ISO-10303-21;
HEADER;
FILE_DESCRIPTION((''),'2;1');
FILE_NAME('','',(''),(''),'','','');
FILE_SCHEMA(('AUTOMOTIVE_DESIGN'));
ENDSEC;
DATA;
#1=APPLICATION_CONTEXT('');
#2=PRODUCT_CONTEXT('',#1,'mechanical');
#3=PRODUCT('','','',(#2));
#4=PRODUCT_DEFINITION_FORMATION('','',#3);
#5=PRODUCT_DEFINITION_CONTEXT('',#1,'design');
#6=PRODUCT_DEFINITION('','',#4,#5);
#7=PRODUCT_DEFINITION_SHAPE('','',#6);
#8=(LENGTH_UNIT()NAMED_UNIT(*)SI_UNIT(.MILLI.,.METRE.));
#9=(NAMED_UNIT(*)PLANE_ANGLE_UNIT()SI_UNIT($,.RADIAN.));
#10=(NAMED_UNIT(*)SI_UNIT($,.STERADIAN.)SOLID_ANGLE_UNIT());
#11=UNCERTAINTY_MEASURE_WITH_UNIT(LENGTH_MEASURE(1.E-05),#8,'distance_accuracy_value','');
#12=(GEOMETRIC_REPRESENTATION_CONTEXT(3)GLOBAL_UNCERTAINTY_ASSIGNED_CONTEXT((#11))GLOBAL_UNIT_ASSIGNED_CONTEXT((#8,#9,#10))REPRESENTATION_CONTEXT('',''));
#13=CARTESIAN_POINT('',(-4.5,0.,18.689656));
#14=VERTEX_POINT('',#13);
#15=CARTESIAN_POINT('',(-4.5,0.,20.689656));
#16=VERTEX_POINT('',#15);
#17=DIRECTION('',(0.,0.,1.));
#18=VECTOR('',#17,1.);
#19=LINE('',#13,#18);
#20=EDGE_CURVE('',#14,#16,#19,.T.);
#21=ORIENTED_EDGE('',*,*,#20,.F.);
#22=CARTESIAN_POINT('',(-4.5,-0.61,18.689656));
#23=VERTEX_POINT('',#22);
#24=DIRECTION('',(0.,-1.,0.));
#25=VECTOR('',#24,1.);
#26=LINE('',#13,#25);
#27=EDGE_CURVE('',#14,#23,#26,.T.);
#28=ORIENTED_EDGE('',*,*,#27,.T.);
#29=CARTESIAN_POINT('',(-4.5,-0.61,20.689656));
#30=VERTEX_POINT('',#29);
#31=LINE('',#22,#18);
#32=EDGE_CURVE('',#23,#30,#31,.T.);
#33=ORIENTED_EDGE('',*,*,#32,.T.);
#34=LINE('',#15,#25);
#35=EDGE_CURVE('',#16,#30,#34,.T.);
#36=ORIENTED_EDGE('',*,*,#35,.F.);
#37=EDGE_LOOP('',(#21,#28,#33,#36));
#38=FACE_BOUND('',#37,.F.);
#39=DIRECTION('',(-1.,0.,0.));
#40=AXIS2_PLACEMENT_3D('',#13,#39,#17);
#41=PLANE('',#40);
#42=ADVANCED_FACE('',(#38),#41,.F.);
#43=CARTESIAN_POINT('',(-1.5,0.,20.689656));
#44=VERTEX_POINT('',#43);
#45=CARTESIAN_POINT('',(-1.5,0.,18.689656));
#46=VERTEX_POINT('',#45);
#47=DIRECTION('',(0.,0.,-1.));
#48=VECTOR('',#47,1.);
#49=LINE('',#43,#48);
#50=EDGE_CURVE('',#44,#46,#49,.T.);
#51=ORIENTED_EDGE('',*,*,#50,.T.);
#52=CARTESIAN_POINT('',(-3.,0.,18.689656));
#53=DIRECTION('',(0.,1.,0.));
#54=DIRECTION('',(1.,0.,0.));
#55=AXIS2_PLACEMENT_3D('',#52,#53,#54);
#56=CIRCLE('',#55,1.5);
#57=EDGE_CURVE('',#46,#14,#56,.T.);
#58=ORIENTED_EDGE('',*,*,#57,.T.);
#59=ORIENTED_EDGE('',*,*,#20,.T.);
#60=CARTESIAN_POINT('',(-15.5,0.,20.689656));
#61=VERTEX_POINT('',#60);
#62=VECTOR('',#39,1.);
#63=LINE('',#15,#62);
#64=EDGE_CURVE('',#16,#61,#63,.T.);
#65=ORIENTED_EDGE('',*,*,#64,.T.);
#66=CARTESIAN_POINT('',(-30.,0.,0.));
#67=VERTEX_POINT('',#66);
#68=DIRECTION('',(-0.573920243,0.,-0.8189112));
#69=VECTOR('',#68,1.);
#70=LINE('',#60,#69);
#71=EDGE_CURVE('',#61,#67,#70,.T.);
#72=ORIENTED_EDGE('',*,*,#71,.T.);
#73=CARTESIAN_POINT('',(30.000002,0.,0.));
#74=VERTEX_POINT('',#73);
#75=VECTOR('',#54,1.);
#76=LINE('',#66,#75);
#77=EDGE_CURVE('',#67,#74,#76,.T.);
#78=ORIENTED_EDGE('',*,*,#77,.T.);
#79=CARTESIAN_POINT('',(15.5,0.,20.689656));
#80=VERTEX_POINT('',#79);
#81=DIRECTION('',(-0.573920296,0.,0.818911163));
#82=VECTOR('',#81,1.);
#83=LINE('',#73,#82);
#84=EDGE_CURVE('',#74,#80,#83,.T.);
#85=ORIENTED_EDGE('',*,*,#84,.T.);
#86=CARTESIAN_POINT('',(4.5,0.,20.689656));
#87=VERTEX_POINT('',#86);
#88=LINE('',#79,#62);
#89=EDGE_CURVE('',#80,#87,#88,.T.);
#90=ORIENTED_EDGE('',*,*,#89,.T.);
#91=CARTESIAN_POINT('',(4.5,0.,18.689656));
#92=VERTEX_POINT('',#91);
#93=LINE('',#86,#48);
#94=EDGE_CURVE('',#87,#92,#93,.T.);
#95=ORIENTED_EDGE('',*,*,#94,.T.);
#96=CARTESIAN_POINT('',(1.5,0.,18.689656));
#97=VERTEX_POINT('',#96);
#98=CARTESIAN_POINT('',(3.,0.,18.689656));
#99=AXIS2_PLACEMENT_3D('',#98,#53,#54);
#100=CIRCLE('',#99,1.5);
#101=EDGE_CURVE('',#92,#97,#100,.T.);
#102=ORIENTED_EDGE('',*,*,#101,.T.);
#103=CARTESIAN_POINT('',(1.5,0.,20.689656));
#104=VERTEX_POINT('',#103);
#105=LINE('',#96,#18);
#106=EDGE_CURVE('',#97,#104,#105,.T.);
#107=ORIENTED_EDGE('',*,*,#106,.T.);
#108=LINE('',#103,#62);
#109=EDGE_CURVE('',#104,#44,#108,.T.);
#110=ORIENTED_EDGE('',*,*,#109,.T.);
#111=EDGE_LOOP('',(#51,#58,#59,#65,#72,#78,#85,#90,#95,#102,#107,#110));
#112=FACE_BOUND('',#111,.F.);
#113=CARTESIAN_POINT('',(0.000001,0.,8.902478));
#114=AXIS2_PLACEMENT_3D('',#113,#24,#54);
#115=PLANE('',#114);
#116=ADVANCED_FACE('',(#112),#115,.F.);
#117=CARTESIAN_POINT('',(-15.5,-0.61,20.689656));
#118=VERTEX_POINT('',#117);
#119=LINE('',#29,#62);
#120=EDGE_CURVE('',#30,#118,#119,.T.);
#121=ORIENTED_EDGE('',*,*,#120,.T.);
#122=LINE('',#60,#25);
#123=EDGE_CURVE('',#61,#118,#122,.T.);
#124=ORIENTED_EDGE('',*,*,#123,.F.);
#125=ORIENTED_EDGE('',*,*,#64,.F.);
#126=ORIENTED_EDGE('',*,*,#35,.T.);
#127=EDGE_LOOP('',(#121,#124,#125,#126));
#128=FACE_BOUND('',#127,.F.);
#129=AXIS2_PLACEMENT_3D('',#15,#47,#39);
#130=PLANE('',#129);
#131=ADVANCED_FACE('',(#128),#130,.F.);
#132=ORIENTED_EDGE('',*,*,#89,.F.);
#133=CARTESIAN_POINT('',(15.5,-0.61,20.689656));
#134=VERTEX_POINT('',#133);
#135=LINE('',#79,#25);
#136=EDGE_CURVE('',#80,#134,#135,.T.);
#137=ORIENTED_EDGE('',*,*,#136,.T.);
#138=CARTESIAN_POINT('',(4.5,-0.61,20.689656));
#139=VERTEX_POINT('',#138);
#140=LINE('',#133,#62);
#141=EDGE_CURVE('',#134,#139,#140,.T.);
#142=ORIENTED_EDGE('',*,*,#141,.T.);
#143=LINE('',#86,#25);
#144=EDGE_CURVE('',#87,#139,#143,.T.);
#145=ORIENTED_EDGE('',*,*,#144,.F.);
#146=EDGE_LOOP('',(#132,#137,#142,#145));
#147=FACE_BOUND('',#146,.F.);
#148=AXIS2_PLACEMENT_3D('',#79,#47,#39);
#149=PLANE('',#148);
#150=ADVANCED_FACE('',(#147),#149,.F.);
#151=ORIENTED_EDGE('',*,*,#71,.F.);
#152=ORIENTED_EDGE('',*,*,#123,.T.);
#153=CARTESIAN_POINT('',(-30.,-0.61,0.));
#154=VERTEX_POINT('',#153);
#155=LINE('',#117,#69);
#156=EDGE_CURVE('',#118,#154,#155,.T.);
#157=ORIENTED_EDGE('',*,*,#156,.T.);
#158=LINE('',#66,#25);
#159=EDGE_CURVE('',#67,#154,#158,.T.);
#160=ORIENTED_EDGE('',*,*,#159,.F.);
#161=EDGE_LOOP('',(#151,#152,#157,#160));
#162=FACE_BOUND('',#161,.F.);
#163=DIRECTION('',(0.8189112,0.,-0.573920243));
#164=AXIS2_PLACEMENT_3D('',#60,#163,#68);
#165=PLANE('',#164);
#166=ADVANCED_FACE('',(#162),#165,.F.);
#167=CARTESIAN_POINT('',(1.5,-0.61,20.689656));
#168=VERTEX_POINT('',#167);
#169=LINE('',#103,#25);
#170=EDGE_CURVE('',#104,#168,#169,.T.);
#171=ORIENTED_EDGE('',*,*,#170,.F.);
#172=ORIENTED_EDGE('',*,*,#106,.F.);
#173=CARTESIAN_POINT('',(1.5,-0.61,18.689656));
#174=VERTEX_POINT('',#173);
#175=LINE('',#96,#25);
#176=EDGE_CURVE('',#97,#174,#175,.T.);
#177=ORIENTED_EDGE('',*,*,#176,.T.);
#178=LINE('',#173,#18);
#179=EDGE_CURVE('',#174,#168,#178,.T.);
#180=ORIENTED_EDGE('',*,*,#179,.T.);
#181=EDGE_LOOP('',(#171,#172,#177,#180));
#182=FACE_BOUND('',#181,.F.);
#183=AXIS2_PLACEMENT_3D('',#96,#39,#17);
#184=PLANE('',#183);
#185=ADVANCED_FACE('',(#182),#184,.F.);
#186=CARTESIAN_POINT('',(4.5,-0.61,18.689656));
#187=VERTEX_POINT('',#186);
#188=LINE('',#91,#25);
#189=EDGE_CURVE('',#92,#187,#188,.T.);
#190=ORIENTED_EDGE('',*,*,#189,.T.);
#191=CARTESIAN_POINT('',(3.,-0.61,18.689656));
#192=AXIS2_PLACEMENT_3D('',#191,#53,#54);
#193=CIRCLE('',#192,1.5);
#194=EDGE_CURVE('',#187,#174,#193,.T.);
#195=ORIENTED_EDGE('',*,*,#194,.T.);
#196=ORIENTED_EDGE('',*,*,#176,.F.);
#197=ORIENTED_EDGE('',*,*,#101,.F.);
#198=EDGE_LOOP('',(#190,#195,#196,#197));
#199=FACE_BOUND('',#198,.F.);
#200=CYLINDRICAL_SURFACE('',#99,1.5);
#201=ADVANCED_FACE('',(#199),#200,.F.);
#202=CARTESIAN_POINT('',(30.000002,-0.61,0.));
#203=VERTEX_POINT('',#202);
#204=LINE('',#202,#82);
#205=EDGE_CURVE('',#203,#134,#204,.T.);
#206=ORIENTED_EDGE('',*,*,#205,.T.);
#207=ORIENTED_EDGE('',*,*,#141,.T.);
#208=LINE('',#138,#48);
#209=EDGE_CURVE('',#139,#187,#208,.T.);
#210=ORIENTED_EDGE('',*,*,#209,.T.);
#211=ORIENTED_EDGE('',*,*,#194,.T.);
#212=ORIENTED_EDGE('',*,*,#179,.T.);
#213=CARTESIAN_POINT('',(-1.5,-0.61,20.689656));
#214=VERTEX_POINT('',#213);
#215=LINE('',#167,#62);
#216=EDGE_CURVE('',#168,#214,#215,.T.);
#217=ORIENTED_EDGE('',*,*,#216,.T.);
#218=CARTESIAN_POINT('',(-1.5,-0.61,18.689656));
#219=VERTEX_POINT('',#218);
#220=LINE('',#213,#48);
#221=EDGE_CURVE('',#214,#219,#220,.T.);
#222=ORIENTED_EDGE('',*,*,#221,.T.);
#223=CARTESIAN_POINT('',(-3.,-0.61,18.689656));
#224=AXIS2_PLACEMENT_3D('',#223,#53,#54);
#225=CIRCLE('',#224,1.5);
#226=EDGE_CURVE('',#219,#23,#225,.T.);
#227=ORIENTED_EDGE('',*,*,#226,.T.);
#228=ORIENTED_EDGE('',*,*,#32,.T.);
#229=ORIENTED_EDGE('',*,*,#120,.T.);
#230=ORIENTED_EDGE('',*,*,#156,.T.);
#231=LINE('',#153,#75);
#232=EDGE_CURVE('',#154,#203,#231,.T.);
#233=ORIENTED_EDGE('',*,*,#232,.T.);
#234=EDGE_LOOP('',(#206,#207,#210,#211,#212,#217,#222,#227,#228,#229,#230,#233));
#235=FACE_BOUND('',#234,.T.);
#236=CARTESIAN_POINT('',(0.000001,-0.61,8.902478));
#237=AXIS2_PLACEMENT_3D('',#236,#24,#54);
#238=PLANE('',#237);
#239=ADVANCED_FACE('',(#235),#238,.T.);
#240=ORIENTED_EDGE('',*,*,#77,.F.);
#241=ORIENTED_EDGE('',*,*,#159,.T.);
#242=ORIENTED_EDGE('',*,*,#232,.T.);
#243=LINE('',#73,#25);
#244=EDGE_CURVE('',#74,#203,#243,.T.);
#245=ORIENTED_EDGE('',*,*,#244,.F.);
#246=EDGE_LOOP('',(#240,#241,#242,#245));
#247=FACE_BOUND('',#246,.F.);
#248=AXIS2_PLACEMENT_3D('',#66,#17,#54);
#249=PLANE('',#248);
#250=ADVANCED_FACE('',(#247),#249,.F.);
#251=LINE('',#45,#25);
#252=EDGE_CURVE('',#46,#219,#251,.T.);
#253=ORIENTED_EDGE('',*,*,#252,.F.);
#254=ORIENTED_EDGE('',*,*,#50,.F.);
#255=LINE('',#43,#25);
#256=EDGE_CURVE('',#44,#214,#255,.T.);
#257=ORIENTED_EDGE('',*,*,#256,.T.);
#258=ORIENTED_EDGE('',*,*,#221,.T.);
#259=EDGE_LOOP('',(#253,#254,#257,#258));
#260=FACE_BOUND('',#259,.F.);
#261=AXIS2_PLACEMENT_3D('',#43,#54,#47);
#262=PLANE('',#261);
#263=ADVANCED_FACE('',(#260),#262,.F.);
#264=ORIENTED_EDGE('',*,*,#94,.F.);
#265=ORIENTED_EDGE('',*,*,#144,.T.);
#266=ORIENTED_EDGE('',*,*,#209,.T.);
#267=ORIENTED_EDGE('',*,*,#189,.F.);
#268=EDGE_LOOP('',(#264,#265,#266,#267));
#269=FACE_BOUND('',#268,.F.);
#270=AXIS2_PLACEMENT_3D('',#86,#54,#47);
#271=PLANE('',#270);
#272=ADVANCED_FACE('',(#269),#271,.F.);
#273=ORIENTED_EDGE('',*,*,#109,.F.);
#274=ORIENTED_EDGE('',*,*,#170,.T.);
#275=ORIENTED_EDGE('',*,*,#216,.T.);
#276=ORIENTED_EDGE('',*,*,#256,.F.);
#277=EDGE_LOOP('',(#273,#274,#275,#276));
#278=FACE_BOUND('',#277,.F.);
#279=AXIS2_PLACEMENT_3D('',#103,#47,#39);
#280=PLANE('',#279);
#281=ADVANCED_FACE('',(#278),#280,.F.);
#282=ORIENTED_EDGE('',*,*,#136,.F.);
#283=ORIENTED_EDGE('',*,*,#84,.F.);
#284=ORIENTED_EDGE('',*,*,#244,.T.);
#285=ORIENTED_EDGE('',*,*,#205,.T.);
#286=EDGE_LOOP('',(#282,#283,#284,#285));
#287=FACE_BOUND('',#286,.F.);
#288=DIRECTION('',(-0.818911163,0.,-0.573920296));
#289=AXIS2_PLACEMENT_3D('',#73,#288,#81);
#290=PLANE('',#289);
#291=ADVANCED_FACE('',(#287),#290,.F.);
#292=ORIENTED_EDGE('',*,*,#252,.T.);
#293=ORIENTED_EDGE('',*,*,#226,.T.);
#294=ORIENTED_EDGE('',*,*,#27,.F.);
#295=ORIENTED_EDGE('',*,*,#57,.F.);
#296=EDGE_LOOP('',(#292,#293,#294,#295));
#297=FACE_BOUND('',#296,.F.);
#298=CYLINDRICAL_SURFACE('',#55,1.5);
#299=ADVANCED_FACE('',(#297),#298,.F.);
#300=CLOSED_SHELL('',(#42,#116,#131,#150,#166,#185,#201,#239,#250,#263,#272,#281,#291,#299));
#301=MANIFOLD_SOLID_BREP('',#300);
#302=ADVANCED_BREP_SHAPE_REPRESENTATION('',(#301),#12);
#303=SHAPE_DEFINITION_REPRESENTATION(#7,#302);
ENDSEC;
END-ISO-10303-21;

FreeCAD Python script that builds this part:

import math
import FreeCAD as App
import Part
import Sketcher
from FreeCAD import Vector
Q = App.Units.Quantity

doc = App.newDocument("Part")
body = doc.addObject("PartDesign::Body", "Body")

sketch1 = body.newObject("Sketcher::SketchObject", "Sketch")
sketch1.AttachmentSupport = (doc.getObject("XZ_Plane"), [""])
sketch1.MapMode = "FlatFace"
sketch1.addGeometry([
    Part.LineSegment(Vector(-30, 0, 0), Vector(30, 0, 0)),
    Part.LineSegment(Vector(30, 0, 0), Vector(15.5, 20.7, 0)),
    Part.LineSegment(Vector(15.5, 20.7, 0), Vector(4.5, 20.7, 0)),
    Part.LineSegment(Vector(4.5, 20.7, 0), Vector(4.5, 18.7, 0)),
    Part.ArcOfCircle(Part.Circle(Vector(3, 18.7, 0), Vector(0, 0, 1), 1.5), math.radians(180), math.radians(360)),
    Part.LineSegment(Vector(1.5, 18.7, 0), Vector(1.5, 20.7, 0)),
    Part.LineSegment(Vector(1.5, 20.7, 0), Vector(-1.5, 20.7, 0)),
    Part.LineSegment(Vector(-1.5, 20.7, 0), Vector(-1.5, 18.7, 0)),
    Part.ArcOfCircle(Part.Circle(Vector(-3, 18.7, 0), Vector(0, 0, 1), 1.5), math.radians(180), math.radians(360)),
    Part.LineSegment(Vector(-4.5, 18.7, 0), Vector(-4.5, 20.7, 0)),
    Part.LineSegment(Vector(-4.5, 20.7, 0), Vector(-15.5, 20.7, 0)),
    Part.LineSegment(Vector(-15.5, 20.7, 0), Vector(-30, 0, 0)),
], False)
sketch1.addConstraint([
    Sketcher.Constraint("Coincident", 0, 2, 1, 1),
    Sketcher.Constraint("Coincident", 1, 2, 2, 1),
    Sketcher.Constraint("Coincident", 2, 2, 3, 1),
    Sketcher.Constraint("Tangent", 3, 2, 4, 2),
    Sketcher.Constraint("Tangent", 4, 1, 5, 1),
    Sketcher.Constraint("Coincident", 5, 2, 6, 1),
    Sketcher.Constraint("Coincident", 6, 2, 7, 1),
    Sketcher.Constraint("Tangent", 7, 2, 8, 2),
    Sketcher.Constraint("Tangent", 8, 1, 9, 1),
    Sketcher.Constraint("Coincident", 9, 2, 10, 1),
    Sketcher.Constraint("Coincident", 10, 2, 11, 1),
    Sketcher.Constraint("Coincident", 11, 2, 0, 1),
    Sketcher.Constraint("Horizontal", 0),
    Sketcher.Constraint("Horizontal", 2),
    Sketcher.Constraint("Vertical", 3),
    Sketcher.Constraint("Vertical", 5),
    Sketcher.Constraint("Horizontal", 6),
    Sketcher.Constraint("Vertical", 7),
    Sketcher.Constraint("Vertical", 9),
    Sketcher.Constraint("Horizontal", 10),
    Sketcher.Constraint("Equal", 4, 8),
    Sketcher.Constraint("Symmetric", 0, 2, 11, 2, -1, 1),
    Sketcher.Constraint("Symmetric", 4, 3, 8, 3, -2),
    Sketcher.Constraint("Symmetric", 1, 2, 10, 2, -2),
    Sketcher.Constraint("Horizontal", 2, 2, 5, 2),
    Sketcher.Constraint("Radius", 4, Q("1.5 mm")),
    Sketcher.Constraint("DistanceX", 0, 1, 0, 2, Q("60.000002 mm")),
    Sketcher.Constraint("DistanceX", 2, 2, 2, 1, Q("11 mm")),
    Sketcher.Constraint("DistanceX", 6, 2, 6, 1, Q("3 mm")),
    Sketcher.Constraint("DistanceY", 3, 2, 3, 1, Q("2 mm")),
    Sketcher.Constraint("Distance", 1, Q("25.264836 mm")),
])
pad1 = body.newObject("PartDesign::Pad", "Pad")
pad1.Profile = sketch1
pad1.Length = 0.61

doc.recompute()
